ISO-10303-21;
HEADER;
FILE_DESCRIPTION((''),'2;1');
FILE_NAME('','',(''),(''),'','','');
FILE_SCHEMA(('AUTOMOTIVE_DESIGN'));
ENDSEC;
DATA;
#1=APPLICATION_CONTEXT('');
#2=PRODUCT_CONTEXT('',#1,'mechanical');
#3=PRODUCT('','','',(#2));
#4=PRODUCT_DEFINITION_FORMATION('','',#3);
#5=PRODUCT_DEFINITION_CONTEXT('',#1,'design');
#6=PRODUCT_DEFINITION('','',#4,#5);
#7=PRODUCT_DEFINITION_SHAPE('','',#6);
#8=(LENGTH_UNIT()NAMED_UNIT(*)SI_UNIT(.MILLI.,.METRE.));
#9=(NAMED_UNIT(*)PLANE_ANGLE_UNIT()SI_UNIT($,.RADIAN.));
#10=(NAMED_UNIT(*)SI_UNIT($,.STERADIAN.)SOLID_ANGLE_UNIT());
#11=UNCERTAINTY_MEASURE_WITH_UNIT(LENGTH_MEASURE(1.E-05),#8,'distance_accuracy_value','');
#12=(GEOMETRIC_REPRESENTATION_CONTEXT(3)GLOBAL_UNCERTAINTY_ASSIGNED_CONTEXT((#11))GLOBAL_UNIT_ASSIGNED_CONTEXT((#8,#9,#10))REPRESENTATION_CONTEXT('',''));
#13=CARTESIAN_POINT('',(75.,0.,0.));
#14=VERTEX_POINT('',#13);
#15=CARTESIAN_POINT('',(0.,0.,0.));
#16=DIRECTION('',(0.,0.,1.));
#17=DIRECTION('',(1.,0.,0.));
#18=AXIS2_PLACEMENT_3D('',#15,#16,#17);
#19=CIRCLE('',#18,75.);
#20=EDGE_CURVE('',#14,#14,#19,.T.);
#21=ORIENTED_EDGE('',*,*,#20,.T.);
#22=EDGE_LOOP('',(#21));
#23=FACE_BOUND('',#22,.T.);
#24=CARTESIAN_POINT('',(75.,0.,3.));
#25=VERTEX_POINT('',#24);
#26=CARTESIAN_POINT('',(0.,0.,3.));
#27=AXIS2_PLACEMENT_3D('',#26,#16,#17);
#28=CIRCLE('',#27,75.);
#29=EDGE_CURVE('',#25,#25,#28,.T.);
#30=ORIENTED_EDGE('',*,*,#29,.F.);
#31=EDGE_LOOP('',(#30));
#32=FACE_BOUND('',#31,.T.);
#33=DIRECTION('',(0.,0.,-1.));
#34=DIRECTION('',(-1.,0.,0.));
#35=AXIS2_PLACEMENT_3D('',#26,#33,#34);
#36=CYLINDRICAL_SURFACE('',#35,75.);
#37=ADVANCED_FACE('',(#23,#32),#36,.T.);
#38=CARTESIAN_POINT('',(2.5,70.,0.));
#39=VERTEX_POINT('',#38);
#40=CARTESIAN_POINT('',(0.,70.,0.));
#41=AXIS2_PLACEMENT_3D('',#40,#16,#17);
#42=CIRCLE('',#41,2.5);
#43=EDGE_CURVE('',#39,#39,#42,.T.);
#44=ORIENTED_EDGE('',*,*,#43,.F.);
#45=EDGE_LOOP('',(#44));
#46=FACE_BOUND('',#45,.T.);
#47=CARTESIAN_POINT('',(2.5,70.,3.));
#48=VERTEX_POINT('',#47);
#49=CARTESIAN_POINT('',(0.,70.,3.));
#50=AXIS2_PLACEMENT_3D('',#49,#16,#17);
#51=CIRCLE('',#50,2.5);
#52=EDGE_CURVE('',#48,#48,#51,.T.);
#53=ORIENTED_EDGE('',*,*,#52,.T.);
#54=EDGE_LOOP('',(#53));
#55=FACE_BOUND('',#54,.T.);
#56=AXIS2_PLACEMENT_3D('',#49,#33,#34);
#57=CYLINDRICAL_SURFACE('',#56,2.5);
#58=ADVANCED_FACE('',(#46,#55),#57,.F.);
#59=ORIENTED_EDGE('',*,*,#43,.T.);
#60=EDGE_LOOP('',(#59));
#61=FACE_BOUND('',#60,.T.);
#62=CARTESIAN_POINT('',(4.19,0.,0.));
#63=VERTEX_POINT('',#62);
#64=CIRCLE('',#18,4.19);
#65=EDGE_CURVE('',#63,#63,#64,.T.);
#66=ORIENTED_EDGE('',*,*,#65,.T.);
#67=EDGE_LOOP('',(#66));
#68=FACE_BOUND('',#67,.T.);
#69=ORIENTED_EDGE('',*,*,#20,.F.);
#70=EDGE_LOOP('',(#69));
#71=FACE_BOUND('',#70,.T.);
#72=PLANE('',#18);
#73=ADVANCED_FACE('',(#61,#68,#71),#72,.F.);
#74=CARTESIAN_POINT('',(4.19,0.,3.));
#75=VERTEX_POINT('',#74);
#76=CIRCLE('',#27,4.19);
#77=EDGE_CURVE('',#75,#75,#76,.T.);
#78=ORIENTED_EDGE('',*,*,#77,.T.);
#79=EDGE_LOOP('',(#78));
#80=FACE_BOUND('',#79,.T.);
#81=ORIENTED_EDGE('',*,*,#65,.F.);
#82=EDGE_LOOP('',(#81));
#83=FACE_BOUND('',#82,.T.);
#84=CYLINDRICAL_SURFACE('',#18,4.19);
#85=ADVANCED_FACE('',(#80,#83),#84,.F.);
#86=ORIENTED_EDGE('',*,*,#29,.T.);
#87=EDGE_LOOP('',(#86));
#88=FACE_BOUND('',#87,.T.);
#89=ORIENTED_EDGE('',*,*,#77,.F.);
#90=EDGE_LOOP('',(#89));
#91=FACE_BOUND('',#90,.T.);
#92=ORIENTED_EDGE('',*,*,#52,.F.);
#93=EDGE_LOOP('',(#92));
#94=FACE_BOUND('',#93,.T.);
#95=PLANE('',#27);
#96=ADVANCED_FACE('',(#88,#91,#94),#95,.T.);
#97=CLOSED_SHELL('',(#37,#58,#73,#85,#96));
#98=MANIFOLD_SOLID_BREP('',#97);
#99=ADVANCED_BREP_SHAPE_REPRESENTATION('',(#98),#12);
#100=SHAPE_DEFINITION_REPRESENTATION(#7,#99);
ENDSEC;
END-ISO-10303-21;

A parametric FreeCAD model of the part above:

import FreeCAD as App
import Part
import Sketcher
from FreeCAD import Vector

doc = App.newDocument("Part")
body = doc.addObject("PartDesign::Body", "Body")

# Sketch on XY plane
sketch1 = body.newObject("Sketcher::SketchObject", "Sketch")
sketch1.AttachmentSupport = (doc.getObject("XY_Plane"), [""])
sketch1.MapMode = "FlatFace"
sketch1.addGeometry([
    Part.Circle(Vector(0, 0, 0), Vector(0, 0, 1), 75),
    Part.Circle(Vector(0, 70, 0), Vector(0, 0, 1), 2.5),
], False)
sketch1.addConstraint([
    Sketcher.Constraint("Coincident", 0, 3, -1, 1),
    Sketcher.Constraint("PointOnObject", 1, 3, -2),
    Sketcher.Constraint("Diameter", 0, 150.0),
    Sketcher.Constraint("Diameter", 1, 5.0),
    Sketcher.Constraint("DistanceY", -1, 1, 1, 3, 70.0),
])
pad1 = body.newObject("PartDesign::Pad", "Pad")
pad1.Profile = sketch1
pad1.Length = 3

# Sketch on XY plane
sketch2 = body.newObject("Sketcher::SketchObject", "Sketch001")
sketch2.AttachmentSupport = (doc.getObject("XY_Plane"), [""])
sketch2.MapMode = "FlatFace"
sketch2.AttachmentOffset = App.Placement(Vector(0, 0, 3), App.Rotation())
sketch2.addGeometry(Part.Circle(Vector(0, 0, 0), Vector(0, 0, 1), 4.2), False)
sketch2.addConstraint([
    Sketcher.Constraint("Coincident", 0, 3, -1, 1),
    Sketcher.Constraint("Diameter", 0, 8.38),
])
pocket1 = body.newObject("PartDesign::Pocket", "Pocket")
pocket1.Profile = sketch2
pocket1.Type = "ThroughAll"

doc.recompute()
